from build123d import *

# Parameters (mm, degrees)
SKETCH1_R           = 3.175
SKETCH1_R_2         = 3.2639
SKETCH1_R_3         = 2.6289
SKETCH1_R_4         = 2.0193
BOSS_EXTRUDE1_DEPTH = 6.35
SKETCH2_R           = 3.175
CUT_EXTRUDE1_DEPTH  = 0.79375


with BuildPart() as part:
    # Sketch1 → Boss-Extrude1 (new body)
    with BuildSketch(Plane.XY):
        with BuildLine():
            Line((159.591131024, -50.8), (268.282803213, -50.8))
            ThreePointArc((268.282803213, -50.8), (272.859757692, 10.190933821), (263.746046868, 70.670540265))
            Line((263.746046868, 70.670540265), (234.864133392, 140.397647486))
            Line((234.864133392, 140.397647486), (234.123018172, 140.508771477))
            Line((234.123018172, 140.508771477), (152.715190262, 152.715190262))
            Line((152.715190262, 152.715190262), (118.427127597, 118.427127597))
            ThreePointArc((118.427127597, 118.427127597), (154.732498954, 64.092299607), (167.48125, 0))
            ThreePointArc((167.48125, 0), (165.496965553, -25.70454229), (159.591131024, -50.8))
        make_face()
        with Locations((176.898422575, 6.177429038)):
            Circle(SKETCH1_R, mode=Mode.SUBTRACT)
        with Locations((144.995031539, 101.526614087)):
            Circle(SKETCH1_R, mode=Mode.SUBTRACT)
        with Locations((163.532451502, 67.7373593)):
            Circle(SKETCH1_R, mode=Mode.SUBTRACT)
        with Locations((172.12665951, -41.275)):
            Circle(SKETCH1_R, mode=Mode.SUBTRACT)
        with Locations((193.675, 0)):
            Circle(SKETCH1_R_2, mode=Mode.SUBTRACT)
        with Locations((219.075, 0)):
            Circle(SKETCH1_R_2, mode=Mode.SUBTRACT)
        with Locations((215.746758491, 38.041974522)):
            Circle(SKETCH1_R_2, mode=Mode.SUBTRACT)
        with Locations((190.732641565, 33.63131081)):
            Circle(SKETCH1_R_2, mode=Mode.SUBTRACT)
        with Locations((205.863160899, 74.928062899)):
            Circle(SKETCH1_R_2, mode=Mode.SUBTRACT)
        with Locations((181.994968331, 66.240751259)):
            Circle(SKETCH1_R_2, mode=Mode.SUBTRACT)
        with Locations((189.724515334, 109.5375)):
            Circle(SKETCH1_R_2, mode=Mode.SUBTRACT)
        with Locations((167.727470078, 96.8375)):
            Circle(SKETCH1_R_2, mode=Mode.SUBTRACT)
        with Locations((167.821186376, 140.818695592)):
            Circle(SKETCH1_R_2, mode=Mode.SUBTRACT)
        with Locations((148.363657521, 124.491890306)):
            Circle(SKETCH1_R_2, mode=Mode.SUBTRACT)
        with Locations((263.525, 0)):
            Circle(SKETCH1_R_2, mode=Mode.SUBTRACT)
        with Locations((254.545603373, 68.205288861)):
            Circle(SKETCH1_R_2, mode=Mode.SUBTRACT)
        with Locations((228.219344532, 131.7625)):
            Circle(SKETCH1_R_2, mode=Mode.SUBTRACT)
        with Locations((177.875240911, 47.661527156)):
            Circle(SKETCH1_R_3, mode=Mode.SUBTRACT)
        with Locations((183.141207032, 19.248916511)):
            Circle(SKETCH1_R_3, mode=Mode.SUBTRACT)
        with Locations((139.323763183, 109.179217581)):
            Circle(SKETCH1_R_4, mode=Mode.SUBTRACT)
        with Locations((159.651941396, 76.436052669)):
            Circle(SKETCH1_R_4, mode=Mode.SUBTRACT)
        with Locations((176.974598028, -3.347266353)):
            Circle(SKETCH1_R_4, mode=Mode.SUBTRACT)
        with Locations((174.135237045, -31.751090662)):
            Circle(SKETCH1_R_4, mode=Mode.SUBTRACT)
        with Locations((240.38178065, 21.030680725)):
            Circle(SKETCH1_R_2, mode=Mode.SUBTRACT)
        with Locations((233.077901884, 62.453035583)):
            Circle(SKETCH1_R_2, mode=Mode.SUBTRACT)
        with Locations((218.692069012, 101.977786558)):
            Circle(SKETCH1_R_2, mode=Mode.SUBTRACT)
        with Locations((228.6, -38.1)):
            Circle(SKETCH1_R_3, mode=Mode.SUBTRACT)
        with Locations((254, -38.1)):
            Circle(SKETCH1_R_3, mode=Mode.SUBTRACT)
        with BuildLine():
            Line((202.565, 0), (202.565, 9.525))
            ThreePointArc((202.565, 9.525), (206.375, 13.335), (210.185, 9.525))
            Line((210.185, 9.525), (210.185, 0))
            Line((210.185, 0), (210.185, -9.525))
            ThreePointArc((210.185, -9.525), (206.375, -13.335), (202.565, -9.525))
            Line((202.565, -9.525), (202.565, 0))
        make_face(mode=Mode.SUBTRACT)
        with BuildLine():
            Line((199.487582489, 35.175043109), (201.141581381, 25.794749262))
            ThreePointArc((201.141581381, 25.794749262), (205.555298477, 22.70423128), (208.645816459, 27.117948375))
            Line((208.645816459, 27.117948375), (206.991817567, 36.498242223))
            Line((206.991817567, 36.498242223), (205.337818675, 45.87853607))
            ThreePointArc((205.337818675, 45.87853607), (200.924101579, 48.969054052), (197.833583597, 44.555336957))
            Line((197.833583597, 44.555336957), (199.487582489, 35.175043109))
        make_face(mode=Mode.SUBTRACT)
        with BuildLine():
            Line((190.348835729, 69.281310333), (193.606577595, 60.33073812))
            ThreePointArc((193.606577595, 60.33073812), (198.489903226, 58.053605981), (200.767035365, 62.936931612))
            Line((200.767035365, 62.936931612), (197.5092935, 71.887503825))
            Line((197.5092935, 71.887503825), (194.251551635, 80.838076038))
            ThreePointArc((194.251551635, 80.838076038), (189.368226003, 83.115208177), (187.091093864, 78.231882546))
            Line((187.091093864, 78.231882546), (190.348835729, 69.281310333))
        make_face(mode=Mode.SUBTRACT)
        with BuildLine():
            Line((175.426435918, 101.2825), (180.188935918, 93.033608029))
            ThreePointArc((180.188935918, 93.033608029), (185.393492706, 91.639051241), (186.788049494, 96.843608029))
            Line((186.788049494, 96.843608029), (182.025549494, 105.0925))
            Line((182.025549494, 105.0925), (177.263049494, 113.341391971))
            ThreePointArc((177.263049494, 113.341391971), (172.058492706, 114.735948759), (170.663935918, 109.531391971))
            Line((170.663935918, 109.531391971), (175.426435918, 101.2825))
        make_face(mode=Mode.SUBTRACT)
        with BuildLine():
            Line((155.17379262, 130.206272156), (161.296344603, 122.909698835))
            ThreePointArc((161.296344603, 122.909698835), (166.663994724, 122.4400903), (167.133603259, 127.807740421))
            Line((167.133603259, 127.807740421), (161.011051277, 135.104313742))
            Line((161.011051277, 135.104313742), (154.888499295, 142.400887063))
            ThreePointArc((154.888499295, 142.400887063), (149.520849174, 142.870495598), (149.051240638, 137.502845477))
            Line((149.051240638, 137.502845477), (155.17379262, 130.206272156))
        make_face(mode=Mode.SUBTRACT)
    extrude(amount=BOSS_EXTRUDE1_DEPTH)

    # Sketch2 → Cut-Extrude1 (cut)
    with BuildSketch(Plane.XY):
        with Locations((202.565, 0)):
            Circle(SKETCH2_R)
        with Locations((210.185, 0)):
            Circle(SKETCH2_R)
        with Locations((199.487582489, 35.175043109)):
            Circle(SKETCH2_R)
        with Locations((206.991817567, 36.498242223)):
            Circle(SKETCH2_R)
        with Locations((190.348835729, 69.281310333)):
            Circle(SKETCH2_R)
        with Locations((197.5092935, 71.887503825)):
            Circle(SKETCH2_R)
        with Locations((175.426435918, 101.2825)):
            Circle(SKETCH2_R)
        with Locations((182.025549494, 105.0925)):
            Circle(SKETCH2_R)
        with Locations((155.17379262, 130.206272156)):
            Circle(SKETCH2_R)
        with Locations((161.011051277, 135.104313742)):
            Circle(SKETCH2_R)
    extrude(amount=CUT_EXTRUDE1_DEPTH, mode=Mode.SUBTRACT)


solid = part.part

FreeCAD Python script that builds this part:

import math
import FreeCAD as App
import Part
import Sketcher

V = App.Vector
Q = App.Units.Quantity

doc = App.newDocument("Part")
body = doc.addObject("PartDesign::Body", "Body")

# Sketch on XY plane
sketch1 = body.newObject("Sketcher::SketchObject", "Sketch")
sketch1.AttachmentSupport = (doc.getObject("XY_Plane"), [""])
sketch1.MapMode = "FlatFace"
sketch1.addGeometry([
    Part.LineSegment(V(159.591131, -50.8, 0), V(268.282803, -50.8, 0)),  # 0
    Part.ArcOfCircle(Part.Circle(V(0, 0, 0), V(0, 0, 1), 273.05), math.radians(-10.722152), math.radians(15)),  # 1
    Part.LineSegment(V(263.746047, 70.67054, 0), V(234.864133, 140.397647, 0)),  # 2
    Part.LineSegment(V(234.864133, 140.397647, 0), V(234.123018, 140.508771, 0)),  # 3
    Part.LineSegment(V(234.123018, 140.508771, 0), V(152.71519, 152.71519, 0)),  # 4
    Part.LineSegment(V(152.71519, 152.71519, 0), V(118.427128, 118.427128, 0)),  # 5
    Part.ArcOfCircle(Part.Circle(V(0, 0, 0), V(0, 0, 1), 167.48125), math.radians(0), math.radians(45)),  # 6
    Part.ArcOfCircle(Part.Circle(V(0, 0, 0), V(0, 0, 1), 167.48125), math.radians(-17.656971), math.radians(0)),  # 7
    Part.Circle(V(172.12666, -41.275, 0), V(0, 0, 1), 3.175),  # 8
    Part.Circle(V(174.135237, -31.751091, 0), V(0, 0, 1), 2.0193),  # 9
    Part.Circle(V(176.974598, -3.347266, 0), V(0, 0, 1), 2.0193),  # 10
    Part.Circle(V(193.675, 0, 0), V(0, 0, 1), 3.2639),  # 11
    Part.Circle(V(176.898423, 6.177429, 0), V(0, 0, 1), 3.175),  # 12
    Part.Circle(V(183.141207, 19.248917, 0), V(0, 0, 1), 2.6289),  # 13
    Part.Circle(V(177.875241, 47.661527, 0), V(0, 0, 1), 2.6289),  # 14
    Part.Circle(V(190.732642, 33.631311, 0), V(0, 0, 1), 3.2639),  # 15
    Part.Circle(V(228.6, -38.1, 0), V(0, 0, 1), 2.6289),  # 16
    Part.LineSegment(V(202.565, -9.525, 0), V(202.565, 9.525, 0)),  # 17
    Part.ArcOfCircle(Part.Circle(V(206.375, 9.525, 0), V(0, 0, 1), 3.81), math.radians(0), math.radians(180)),  # 18
    Part.LineSegment(V(210.185, 9.525, 0), V(210.185, -9.525, 0)),  # 19
    Part.ArcOfCircle(Part.Circle(V(206.375, -9.525, 0), V(0, 0, 1), 3.81), math.radians(180), math.radians(360)),  # 20
    Part.Circle(V(219.075, 0, 0), V(0, 0, 1), 3.2639),  # 21
    Part.Circle(V(254, -38.1, 0), V(0, 0, 1), 2.6289),  # 22
    Part.Circle(V(263.525, 0, 0), V(0, 0, 1), 3.2639),  # 23
    Part.LineSegment(V(201.141581, 25.794749, 0), V(199.487582, 35.175043, 0)),  # 24
    Part.LineSegment(V(199.487582, 35.175043, 0), V(197.833584, 44.555337, 0)),  # 25
    Part.ArcOfCircle(Part.Circle(V(201.585701, 45.216937, 0), V(0, 0, 1), 3.81), math.radians(10), math.radians(190)),  # 26
    Part.LineSegment(V(205.337819, 45.878536, 0), V(206.991818, 36.498242, 0)),  # 27
    Part.LineSegment(V(206.991818, 36.498242, 0), V(208.645816, 27.117948, 0)),  # 28
    Part.ArcOfCircle(Part.Circle(V(204.893699, 26.456349, 0), V(0, 0, 1), 3.81), math.radians(-170), math.radians(10)),  # 29
    Part.Circle(V(215.746758, 38.041975, 0), V(0, 0, 1), 3.2639),  # 30
    Part.Circle(V(240.381781, 21.030681, 0), V(0, 0, 1), 3.2639),  # 31
    Part.Circle(V(163.532452, 67.737359, 0), V(0, 0, 1), 3.175),  # 32
    Part.Circle(V(159.651941, 76.436053, 0), V(0, 0, 1), 2.0193),  # 33
    Part.Circle(V(167.72747, 96.8375, 0), V(0, 0, 1), 3.2639),  # 34
    Part.Circle(V(181.994968, 66.240751, 0), V(0, 0, 1), 3.2639),  # 35
    Part.LineSegment(V(193.606578, 60.330738, 0), V(190.348836, 69.28131, 0)),  # 36
    Part.LineSegment(V(190.348836, 69.28131, 0), V(187.091094, 78.231883, 0)),  # 37
    Part.ArcOfCircle(Part.Circle(V(190.671323, 79.534979, 0), V(0, 0, 1), 3.81), math.radians(20), math.radians(200)),  # 38
    Part.LineSegment(V(194.251552, 80.838076, 0), V(200.767035, 62.936932, 0)),  # 39
    Part.ArcOfCircle(Part.Circle(V(197.186806, 61.633835, 0), V(0, 0, 1), 3.81), math.radians(-160), math.radians(20)),  # 40
    Part.Circle(V(144.995032, 101.526614, 0), V(0, 0, 1), 3.175),  # 41
    Part.Circle(V(139.323763, 109.179218, 0), V(0, 0, 1), 2.0193),  # 42
    Part.Circle(V(148.363658, 124.49189, 0), V(0, 0, 1), 3.2639),  # 43
    Part.LineSegment(V(161.296345, 122.909699, 0), V(155.173793, 130.206272, 0)),  # 44
    Part.LineSegment(V(155.173793, 130.206272, 0), V(149.051241, 137.502845, 0)),  # 45
    Part.ArcOfCircle(Part.Circle(V(151.96987, 139.951866, 0), V(0, 0, 1), 3.81), math.radians(40), math.radians(220)),  # 46
    Part.LineSegment(V(154.888499, 142.400887, 0), V(167.133603, 127.80774, 0)),  # 47
    Part.ArcOfCircle(Part.Circle(V(164.214974, 125.35872, 0), V(0, 0, 1), 3.81), math.radians(-140), math.radians(40)),  # 48
    Part.Circle(V(167.821186, 140.818696, 0), V(0, 0, 1), 3.2639),  # 49
    Part.ArcOfCircle(Part.Circle(V(183.488493, 94.938608, 0), V(0, 0, 1), 3.81), math.radians(-150), math.radians(30)),  # 50
    Part.LineSegment(V(180.188936, 93.033608, 0), V(170.663936, 109.531392, 0)),  # 51
    Part.ArcOfCircle(Part.Circle(V(173.963493, 111.436392, 0), V(0, 0, 1), 3.81), math.radians(30), math.radians(210)),  # 52
    Part.LineSegment(V(177.263049, 113.341392, 0), V(186.788049, 96.843608, 0)),  # 53
    Part.Circle(V(189.724515, 109.5375, 0), V(0, 0, 1), 3.2639),  # 54
    Part.Circle(V(233.077902, 62.453036, 0), V(0, 0, 1), 3.2639),  # 55
    Part.Circle(V(205.863161, 74.928063, 0), V(0, 0, 1), 3.2639),  # 56
    Part.Circle(V(254.545603, 68.205289, 0), V(0, 0, 1), 3.2639),  # 57
    Part.Circle(V(218.692069, 101.977787, 0), V(0, 0, 1), 3.2639),  # 58
    Part.Circle(V(228.219345, 131.7625, 0), V(0, 0, 1), 3.2639),  # 59
], False)
sketch1.addConstraint([
    Sketcher.Constraint("Coincident", 0, 2, 1, 1),
    Sketcher.Constraint("Coincident", 1, 2, 2, 1),
    Sketcher.Constraint("Coincident", 2, 2, 3, 1),
    Sketcher.Constraint("Coincident", 3, 2, 4, 1),
    Sketcher.Constraint("Coincident", 4, 2, 5, 1),
    Sketcher.Constraint("Coincident", 5, 2, 6, 2),
    Sketcher.Constraint("Coincident", 6, 1, 7, 2),
    Sketcher.Constraint("Coincident", 7, 1, 0, 1),
    Sketcher.Constraint("Coincident", 17, 2, 18, 2),
    Sketcher.Constraint("Coincident", 18, 1, 19, 1),
    Sketcher.Constraint("Coincident", 19, 2, 20, 2),
    Sketcher.Constraint("Coincident", 20, 1, 17, 1),
    Sketcher.Constraint("Coincident", 24, 2, 25, 1),
    Sketcher.Constraint("Coincident", 25, 2, 26, 2),
    Sketcher.Constraint("Coincident", 26, 1, 27, 1),
    Sketcher.Constraint("Coincident", 27, 2, 28, 1),
    Sketcher.Constraint("Coincident", 28, 2, 29, 2),
    Sketcher.Constraint("Coincident", 29, 1, 24, 1),
    Sketcher.Constraint("Coincident", 36, 2, 37, 1),
    Sketcher.Constraint("Coincident", 37, 2, 38, 2),
    Sketcher.Constraint("Coincident", 38, 1, 39, 1),
    Sketcher.Constraint("Coincident", 39, 2, 40, 2),
    Sketcher.Constraint("Coincident", 40, 1, 36, 1),
    Sketcher.Constraint("Coincident", 44, 2, 45, 1),
    Sketcher.Constraint("Coincident", 45, 2, 46, 2),
    Sketcher.Constraint("Coincident", 46, 1, 47, 1),
    Sketcher.Constraint("Coincident", 47, 2, 48, 2),
    Sketcher.Constraint("Coincident", 48, 1, 44, 1),
    Sketcher.Constraint("Coincident", 50, 1, 51, 1),
    Sketcher.Constraint("Coincident", 51, 2, 52, 2),
    Sketcher.Constraint("Coincident", 52, 1, 53, 1),
    Sketcher.Constraint("Coincident", 53, 2, 50, 2),
    Sketcher.Constraint("Horizontal", 0),
    Sketcher.Constraint("Vertical", 17),
    Sketcher.Constraint("Vertical", 19),
    Sketcher.Constraint("Coincident", 1, 3, -1, 1),
    Sketcher.Constraint("Coincident", 6, 3, -1, 1),
    Sketcher.Constraint("Coincident", 7, 3, -1, 1),
    Sketcher.Constraint("PointOnObject", 11, 3, -1),
    Sketcher.Constraint("PointOnObject", 21, 3, -1),
    Sketcher.Constraint("PointOnObject", 23, 3, -1),
    Sketcher.Constraint("PointOnObject", 6, 1, -1),
    Sketcher.Constraint("Diameter", 8, Q("0.25 in")),
    Sketcher.Constraint("Diameter", 12, Q("0.25 in")),
    Sketcher.Constraint("Diameter", 32, Q("0.25 in")),
    Sketcher.Constraint("Diameter", 41, Q("0.25 in")),
    Sketcher.Constraint("Radius", 1, Q("10.75 in")),
    Sketcher.Constraint("Radius", 18, Q("0.15 in")),
    Sketcher.Constraint("Radius", 26, Q("0.15 in")),
    Sketcher.Constraint("Radius", 29, Q("0.15 in")),
    Sketcher.Constraint("Radius", 38, Q("0.15 in")),
    Sketcher.Constraint("Radius", 40, Q("0.15 in")),
    Sketcher.Constraint("Radius", 46, Q("0.15 in")),
    Sketcher.Constraint("Radius", 48, Q("0.15 in")),
    Sketcher.Constraint("Radius", 50, Q("0.15 in")),
    Sketcher.Constraint("Radius", 52, Q("0.15 in")),
    Sketcher.Constraint("Diameter", 9, Q("0.159 in")),
    Sketcher.Constraint("Diameter", 10, Q("0.159 in")),
    Sketcher.Constraint("Diameter", 11, Q("0.257 in")),
    Sketcher.Constraint("Diameter", 13, Q("0.207 in")),
    Sketcher.Constraint("Diameter", 14, Q("0.207 in")),
    Sketcher.Constraint("Diameter", 15, Q("0.257 in")),
    Sketcher.Constraint("Diameter", 16, Q("0.207 in")),
    Sketcher.Constraint("Diameter", 21, Q("0.257 in")),
    Sketcher.Constraint("Diameter", 22, Q("0.207 in")),
    Sketcher.Constraint("Diameter", 23, Q("0.257 in")),
    Sketcher.Constraint("Diameter", 30, Q("0.257 in")),
    Sketcher.Constraint("Diameter", 31, Q("0.257 in")),
    Sketcher.Constraint("Diameter", 33, Q("0.159 in")),
    Sketcher.Constraint("Diameter", 34, Q("0.257 in")),
    Sketcher.Constraint("Diameter", 35, Q("0.257 in")),
    Sketcher.Constraint("Diameter", 42, Q("0.159 in")),
    Sketcher.Constraint("Diameter", 43, Q("0.257 in")),
    Sketcher.Constraint("Diameter", 49, Q("0.257 in")),
    Sketcher.Constraint("Diameter", 54, Q("0.257 in")),
    Sketcher.Constraint("Diameter", 55, Q("0.257 in")),
    Sketcher.Constraint("Diameter", 56, Q("0.257 in")),
    Sketcher.Constraint("Diameter", 57, Q("0.257 in")),
    Sketcher.Constraint("Diameter", 58, Q("0.257 in")),
    Sketcher.Constraint("Diameter", 59, Q("0.257 in")),
    Sketcher.Constraint("DistanceX", -1, 1, 16, 3, Q("9 in")),
    Sketcher.Constraint("DistanceX", -1, 1, 22, 3, Q("10 in")),
    Sketcher.Constraint("DistanceY", 0, 2, -1, 1, Q("2 in")),
    Sketcher.Constraint("Radius", 6, Q("6.59375 in")),
    Sketcher.Constraint("DistanceY", 17, 1, 17, 2, Q("0.75 in")),
    Sketcher.Constraint("DistanceY", 19, 2, 19, 1, Q("0.75 in")),
    Sketcher.Constraint("DistanceY", 16, 3, -1, 1, Q("1.5 in")),
    Sketcher.Constraint("DistanceY", 22, 3, -1, 1, Q("1.5 in")),
    Sketcher.Constraint("Distance", 39, Q("0.75 in")),
    Sketcher.Constraint("Distance", 47, Q("0.75 in")),
    Sketcher.Constraint("Distance", 51, Q("0.75 in")),
    Sketcher.Constraint("Distance", 53, Q("0.75 in")),
    Sketcher.Constraint("Distance", 24, Q("0.375 in")),
    Sketcher.Constraint("Distance", 25, Q("0.375 in")),
    Sketcher.Constraint("Distance", 27, Q("0.375 in")),
    Sketcher.Constraint("Distance", 28, Q("0.375 in")),
    Sketcher.Constraint("Distance", 36, Q("0.375 in")),
    Sketcher.Constraint("Distance", 37, Q("0.375 in")),
    Sketcher.Constraint("Distance", 44, Q("0.375 in")),
    Sketcher.Constraint("Distance", 45, Q("0.375 in")),
    Sketcher.Constraint("DistanceY", 8, 3, -1, 1, Q("1.625 in")),
    Sketcher.Constraint("DistanceX", -1, 1, 11, 3, Q("7.625 in")),
    Sketcher.Constraint("DistanceX", -1, 1, 18, 3, Q("8.125 in")),
    Sketcher.Constraint("DistanceY", -1, 1, 18, 3, Q("0.375 in")),
    Sketcher.Constraint("DistanceY", 20, 3, -1, 1, Q("0.375 in")),
    Sketcher.Constraint("DistanceX", -1, 1, 21, 3, Q("8.625 in")),
    Sketcher.Constraint("DistanceX", -1, 1, 23, 3, Q("10.375 in")),
    Sketcher.Constraint("DistanceY", -1, 1, 34, 3, Q("3.8125 in")),
    Sketcher.Constraint("DistanceY", -1, 1, 54, 3, Q("4.3125 in")),
    Sketcher.Constraint("DistanceY", -1, 1, 59, 3, Q("5.1875 in")),
    Sketcher.Constraint("DistanceY", -1, 1, 17, 2, Q("0.375 in")),
    Sketcher.Constraint("DistanceY", -1, 1, 18, 1, Q("0.375 in")),
    Sketcher.Constraint("Distance", 3, 0.7494),
    Sketcher.Constraint("DistanceX", -1, 1, 10, 3, 176.974598),
    Sketcher.Constraint("DistanceX", -1, 1, 26, 3, 201.585701),
    Sketcher.Constraint("DistanceX", -1, 1, 29, 3, 204.893699),
    Sketcher.Constraint("DistanceX", -1, 1, 55, 3, 233.077902),
    Sketcher.Constraint("DistanceX", -1, 1, 46, 1, 154.888499),
    Sketcher.Constraint("DistanceY", -1, 1, 48, 1, 122.909699),
    Sketcher.Constraint("DistanceX", -1, 1, 8, 3, 172.12666),
    Sketcher.Constraint("DistanceY", 9, 3, -1, 1, 31.751091),
    Sketcher.Constraint("DistanceY", -1, 1, 12, 3, 6.177429),
    Sketcher.Constraint("DistanceX", -1, 1, 14, 3, 177.875241),
    Sketcher.Constraint("DistanceX", -1, 1, 15, 3, 190.732642),
    Sketcher.Constraint("DistanceY", -1, 1, 15, 3, 33.631311),
    Sketcher.Constraint("DistanceY", -1, 1, 29, 3, 26.456349),
    Sketcher.Constraint("DistanceX", -1, 1, 30, 3, 215.746758),
    Sketcher.Constraint("DistanceX", -1, 1, 31, 3, 240.381781),
    Sketcher.Constraint("DistanceY", -1, 1, 31, 3, 21.030681),
    Sketcher.Constraint("DistanceX", -1, 1, 32, 3, 163.532452),
    Sketcher.Constraint("DistanceY", -1, 1, 32, 3, 67.737359),
    Sketcher.Constraint("DistanceX", -1, 1, 33, 3, 159.651941),
    Sketcher.Constraint("DistanceX", -1, 1, 34, 3, 167.72747),
    Sketcher.Constraint("DistanceX", -1, 1, 35, 3, 181.994968),
    Sketcher.Constraint("DistanceY", -1, 1, 35, 3, 66.240751),
    Sketcher.Constraint("DistanceY", -1, 1, 38, 3, 79.534979),
    Sketcher.Constraint("DistanceX", -1, 1, 41, 3, 144.995032),
    Sketcher.Constraint("DistanceY", -1, 1, 43, 3, 124.49189),
    Sketcher.Constraint("DistanceX", -1, 1, 46, 3, 151.96987),
    Sketcher.Constraint("DistanceY", -1, 1, 48, 3, 125.35872),
    Sketcher.Constraint("DistanceY", -1, 1, 50, 3, 94.938608),
    Sketcher.Constraint("DistanceY", -1, 1, 52, 3, 111.436392),
    Sketcher.Constraint("DistanceX", -1, 1, 56, 3, 205.863161),
    Sketcher.Constraint("DistanceY", -1, 1, 57, 3, 68.205289),
    Sketcher.Constraint("DistanceX", -1, 1, 58, 3, 218.692069),
    Sketcher.Constraint("DistanceY", -1, 1, 1, 2, 70.67054),
    Sketcher.Constraint("DistanceX", -1, 1, 3, 2, 234.123018),
    Sketcher.Constraint("DistanceY", -1, 1, 3, 2, 140.508771),
    Sketcher.Constraint("DistanceX", -1, 1, 4, 2, 152.71519),
    Sketcher.Constraint("DistanceY", -1, 1, 4, 2, 152.71519),
    Sketcher.Constraint("DistanceX", -1, 1, 26, 1, 205.337819),
    Sketcher.Constraint("DistanceY", -1, 1, 28, 2, 27.117948),
    Sketcher.Constraint("DistanceX", -1, 1, 29, 1, 201.141581),
    Sketcher.Constraint("DistanceY", -1, 1, 36, 2, 69.28131),
    Sketcher.Constraint("DistanceX", -1, 1, 38, 1, 194.251552),
    Sketcher.Constraint("DistanceY", -1, 1, 39, 2, 62.936932),
    Sketcher.Constraint("DistanceY", -1, 1, 40, 1, 60.330738),
    Sketcher.Constraint("DistanceX", -1, 1, 45, 2, 149.051241),
    Sketcher.Constraint("DistanceY", -1, 1, 50, 1, 93.033608),
    Sketcher.Constraint("DistanceY", -1, 1, 51, 2, 109.531392),
    Sketcher.Constraint("DistanceX", -1, 1, 52, 1, 177.263049),
    Sketcher.Constraint("DistanceY", -1, 1, 52, 1, 113.341392),
    Sketcher.Constraint("Distance", 2, 75.472077),
    Sketcher.Constraint("DistanceX", -1, 1, 9, 3, 174.135237),
    Sketcher.Constraint("DistanceY", 10, 3, -1, 1, 3.347266),
    Sketcher.Constraint("DistanceX", -1, 1, 12, 3, 176.898423),
    Sketcher.Constraint("DistanceX", -1, 1, 13, 3, 183.141207),
    Sketcher.Constraint("DistanceY", -1, 1, 13, 3, 19.248917),
    Sketcher.Constraint("DistanceY", -1, 1, 14, 3, 47.661527),
    Sketcher.Constraint("DistanceY", -1, 1, 30, 3, 38.041975),
    Sketcher.Constraint("DistanceY", -1, 1, 33, 3, 76.436053),
    Sketcher.Constraint("DistanceX", -1, 1, 38, 3, 190.671323),
    Sketcher.Constraint("DistanceX", -1, 1, 40, 3, 197.186806),
    Sketcher.Constraint("DistanceY", -1, 1, 41, 3, 101.526614),
    Sketcher.Constraint("DistanceX", -1, 1, 42, 3, 139.323763),
    Sketcher.Constraint("DistanceY", -1, 1, 42, 3, 109.179218),
    Sketcher.Constraint("DistanceX", -1, 1, 43, 3, 148.363658),
    Sketcher.Constraint("DistanceY", -1, 1, 46, 3, 139.951866),
    Sketcher.Constraint("DistanceX", -1, 1, 49, 3, 167.821186),
    Sketcher.Constraint("DistanceY", -1, 1, 49, 3, 140.818696),
    Sketcher.Constraint("DistanceX", -1, 1, 54, 3, 189.724515),
    Sketcher.Constraint("DistanceY", -1, 1, 55, 3, 62.453036),
    Sketcher.Constraint("DistanceY", -1, 1, 56, 3, 74.928063),
    Sketcher.Constraint("DistanceX", -1, 1, 57, 3, 254.545603),
    Sketcher.Constraint("DistanceY", -1, 1, 58, 3, 101.977787),
    Sketcher.Constraint("DistanceX", -1, 1, 59, 3, 228.219345),
    Sketcher.Constraint("DistanceX", -1, 1, 5, 2, 118.427128),
    Sketcher.Constraint("DistanceX", -1, 1, 24, 2, 199.487582),
    Sketcher.Constraint("DistanceX", -1, 1, 27, 2, 206.991818),
    Sketcher.Constraint("DistanceX", -1, 1, 44, 2, 155.173793),
])
pad1 = body.newObject("PartDesign::Pad", "Pad")
pad1.Profile = sketch1
pad1.Length = Q("0.25 in")

# Sketch on XY plane
sketch2 = body.newObject("Sketcher::SketchObject", "Sketch001")
sketch2.AttachmentSupport = (doc.getObject("XY_Plane"), [""])
sketch2.MapMode = "FlatFace"
sketch2.addGeometry([
    Part.Circle(V(202.565, 0, 0), V(0, 0, 1), 3.175),  # 0
    Part.Circle(V(210.185, 0, 0), V(0, 0, 1), 3.175),  # 1
    Part.Circle(V(199.487582, 35.175043, 0), V(0, 0, 1), 3.175),  # 2
    Part.Circle(V(206.991818, 36.498242, 0), V(0, 0, 1), 3.175),  # 3
    Part.Circle(V(190.348836, 69.28131, 0), V(0, 0, 1), 3.175),  # 4
    Part.Circle(V(197.509294, 71.887504, 0), V(0, 0, 1), 3.175),  # 5
    Part.Circle(V(175.426436, 101.2825, 0), V(0, 0, 1), 3.175),  # 6
    Part.Circle(V(182.025549, 105.0925, 0), V(0, 0, 1), 3.175),  # 7
    Part.Circle(V(155.173793, 130.206272, 0), V(0, 0, 1), 3.175),  # 8
    Part.Circle(V(161.011051, 135.104314, 0), V(0, 0, 1), 3.175),  # 9
], False)
sketch2.addConstraint([
    Sketcher.Constraint("Equal", 0, 1),
    Sketcher.Constraint("Equal", 1, 2),
    Sketcher.Constraint("Equal", 2, 3),
    Sketcher.Constraint("Equal", 3, 4),
    Sketcher.Constraint("Equal", 4, 5),
    Sketcher.Constraint("Equal", 5, 6),
    Sketcher.Constraint("Equal", 6, 7),
    Sketcher.Constraint("Equal", 7, 8),
    Sketcher.Constraint("Equal", 8, 9),
    Sketcher.Constraint("PointOnObject", 0, 3, -1),
    Sketcher.Constraint("PointOnObject", 1, 3, -1),
    Sketcher.Constraint("Diameter", 0, Q("0.25 in")),
    Sketcher.Constraint("DistanceX", 0, 3, 1, 3, Q("0.3 in")),
    Sketcher.Constraint("DistanceY", 6, 3, 7, 3, Q("0.15 in")),
    Sketcher.Constraint("DistanceX", -1, 1, 0, 3, Q("7.975 in")),
    Sketcher.Constraint("DistanceY", -1, 1, 6, 3, Q("3.9875 in")),
    Sketcher.Constraint("DistanceY", 2, 3, 3, 3, 1.323199),
    Sketcher.Constraint("DistanceX", 6, 3, 4, 3, 14.9224),
    Sketcher.Constraint("DistanceX", 8, 3, 5, 3, 42.335501),
    Sketcher.Constraint("DistanceX", 9, 3, 7, 3, 21.014498),
    Sketcher.Constraint("DistanceY", -1, 1, 4, 3, 69.28131),
    Sketcher.Constraint("DistanceX", -1, 1, 7, 3, 182.025549),
    Sketcher.Constraint("DistanceX", 4, 3, 3, 3, 16.642982),
    Sketcher.Constraint("DistanceY", 3, 3, 4, 3, 32.783068),
    Sketcher.Constraint("DistanceY", 3, 3, 5, 3, 35.389262),
    Sketcher.Constraint("DistanceX", 5, 3, 2, 3, 1.978289),
    Sketcher.Constraint("DistanceX", 7, 3, 3, 3, 24.966268),
    Sketcher.Constraint("DistanceY", 4, 3, 8, 3, 60.924962),
    Sketcher.Constraint("DistanceX", 8, 3, 9, 3, 5.837259),
    Sketcher.Constraint("DistanceY", 8, 3, 9, 3, 4.898042),
])
pocket1 = body.newObject("PartDesign::Pocket", "Pocket")
pocket1.Profile = sketch2
pocket1.Length = Q("0.03125 in")
pocket1.Reversed = True

doc.recompute()
